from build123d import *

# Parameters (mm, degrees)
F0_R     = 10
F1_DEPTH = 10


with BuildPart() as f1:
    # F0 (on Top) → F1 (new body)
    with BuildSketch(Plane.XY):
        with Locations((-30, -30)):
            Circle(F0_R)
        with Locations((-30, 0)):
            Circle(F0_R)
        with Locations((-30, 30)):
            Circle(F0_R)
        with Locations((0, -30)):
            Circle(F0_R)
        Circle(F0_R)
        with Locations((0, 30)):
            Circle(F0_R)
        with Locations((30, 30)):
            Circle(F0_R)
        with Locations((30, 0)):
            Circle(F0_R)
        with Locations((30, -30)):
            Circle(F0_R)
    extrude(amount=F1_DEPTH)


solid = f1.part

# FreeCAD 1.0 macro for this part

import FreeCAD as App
import Part
import Sketcher

V = App.Vector

doc = App.newDocument("Part")
body = doc.addObject("PartDesign::Body", "Body")
body.AllowCompound = True

sketch1 = body.newObject("Sketcher::SketchObject", "Sketch")
sketch1.AttachmentSupport = (doc.getObject("XY_Plane"), [""])
sketch1.MapMode = "FlatFace"
sketch1.addGeometry([
    Part.Circle(V(-30, -30, 0), V(0, 0, 1), 10),
    Part.Circle(V(-30, 0, 0), V(0, 0, 1), 10),
    Part.Circle(V(-30, 30, 0), V(0, 0, 1), 10),
    Part.Circle(V(0, -30, 0), V(0, 0, 1), 10),
    Part.Circle(V(0, 0, 0), V(0, 0, 1), 10),
    Part.Circle(V(0, 30, 0), V(0, 0, 1), 10),
    Part.Circle(V(30, 30, 0), V(0, 0, 1), 10),
    Part.Circle(V(30, 0, 0), V(0, 0, 1), 10),
    Part.Circle(V(30, -30, 0), V(0, 0, 1), 10),
], False)
sketch1.addConstraint([
    Sketcher.Constraint("Coincident", 4, 3, -1, 1),
    Sketcher.Constraint("Equal", 0, 1),
    Sketcher.Constraint("Equal", 1, 2),
    Sketcher.Constraint("Equal", 2, 3),
    Sketcher.Constraint("Equal", 3, 4),
    Sketcher.Constraint("Equal", 4, 5),
    Sketcher.Constraint("Equal", 5, 6),
    Sketcher.Constraint("Equal", 6, 7),
    Sketcher.Constraint("Equal", 7, 8),
    Sketcher.Constraint("Symmetric", 3, 3, 5, 3, -1, 1),
    Sketcher.Constraint("Symmetric", 0, 3, 6, 3, -1, 1),
    Sketcher.Constraint("Symmetric", 1, 3, 7, 3, -1, 1),
    Sketcher.Constraint("Symmetric", 2, 3, 8, 3, -1, 1),
    Sketcher.Constraint("Symmetric", 2, 3, 6, 3, -2),
    Sketcher.Constraint("PointOnObject", 1, 3, -1),
    Sketcher.Constraint("PointOnObject", 3, 3, -2),
    Sketcher.Constraint("Horizontal", 0, 3, 3, 3),
    Sketcher.Constraint("Vertical", 0, 3, 1, 3),
    Sketcher.Constraint("Diameter", 0, 20.0),
    Sketcher.Constraint("DistanceX", 0, 3, -1, 1, 30.0),
    Sketcher.Constraint("DistanceY", 0, 3, -1, 1, 30.0),
])
pad1 = body.newObject("PartDesign::Pad", "Pad")
pad1.Profile = sketch1
pad1.Length = 10

doc.recompute()
